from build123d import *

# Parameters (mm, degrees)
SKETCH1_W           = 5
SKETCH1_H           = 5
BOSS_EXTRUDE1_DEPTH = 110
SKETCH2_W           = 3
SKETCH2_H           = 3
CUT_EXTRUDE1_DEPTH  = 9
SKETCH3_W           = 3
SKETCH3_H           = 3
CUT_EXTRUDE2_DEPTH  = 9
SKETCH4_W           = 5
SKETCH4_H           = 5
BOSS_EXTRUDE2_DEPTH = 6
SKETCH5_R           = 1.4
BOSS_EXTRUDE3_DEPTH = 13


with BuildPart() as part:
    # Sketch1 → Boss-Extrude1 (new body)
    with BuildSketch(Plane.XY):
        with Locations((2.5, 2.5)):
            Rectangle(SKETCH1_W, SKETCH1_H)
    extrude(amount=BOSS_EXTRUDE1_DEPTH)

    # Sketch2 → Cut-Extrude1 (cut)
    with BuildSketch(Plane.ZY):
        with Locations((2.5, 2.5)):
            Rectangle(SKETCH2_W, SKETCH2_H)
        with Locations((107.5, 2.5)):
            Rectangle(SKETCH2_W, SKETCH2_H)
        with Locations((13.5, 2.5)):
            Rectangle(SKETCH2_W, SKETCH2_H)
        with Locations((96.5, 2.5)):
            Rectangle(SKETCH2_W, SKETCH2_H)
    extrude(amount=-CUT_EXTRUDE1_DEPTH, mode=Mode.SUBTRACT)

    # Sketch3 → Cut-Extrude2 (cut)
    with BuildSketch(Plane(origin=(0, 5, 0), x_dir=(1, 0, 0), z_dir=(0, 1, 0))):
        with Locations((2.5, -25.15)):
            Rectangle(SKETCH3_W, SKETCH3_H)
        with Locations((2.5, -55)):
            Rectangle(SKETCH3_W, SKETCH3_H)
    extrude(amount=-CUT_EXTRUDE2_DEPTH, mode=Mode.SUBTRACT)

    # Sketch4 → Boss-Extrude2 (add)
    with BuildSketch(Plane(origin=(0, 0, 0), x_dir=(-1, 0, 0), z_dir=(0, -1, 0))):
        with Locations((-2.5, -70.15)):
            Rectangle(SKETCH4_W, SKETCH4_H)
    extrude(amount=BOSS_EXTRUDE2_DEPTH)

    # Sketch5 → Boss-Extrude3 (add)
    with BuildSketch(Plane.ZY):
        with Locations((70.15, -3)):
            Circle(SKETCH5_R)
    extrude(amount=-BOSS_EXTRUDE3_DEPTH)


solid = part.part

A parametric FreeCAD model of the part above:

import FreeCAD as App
import Part
import Sketcher
Q = App.Units.Quantity

doc = App.newDocument("Part")
body = doc.addObject("PartDesign::Body", "Body")

sketch1 = body.newObject("Sketcher::SketchObject", "Sketch")
sketch1.AttachmentSupport = (doc.getObject("XY_Plane"), [""])
sketch1.MapMode = "FlatFace"
sketch1.addGeometry([
    Part.LineSegment(App.Vector(0, 5, 0), App.Vector(0, 0, 0)),
    Part.LineSegment(App.Vector(0, 0, 0), App.Vector(5, 0, 0)),
    Part.LineSegment(App.Vector(5, 0, 0), App.Vector(5, 5, 0)),
    Part.LineSegment(App.Vector(5, 5, 0), App.Vector(0, 5, 0)),
], False)
sketch1.addConstraint([
    Sketcher.Constraint("Coincident", 0, 2, 1, 1),
    Sketcher.Constraint("Coincident", 1, 2, 2, 1),
    Sketcher.Constraint("Coincident", 2, 2, 3, 1),
    Sketcher.Constraint("Coincident", 3, 2, 0, 1),
    Sketcher.Constraint("Vertical", 0),
    Sketcher.Constraint("Horizontal", 1),
    Sketcher.Constraint("Vertical", 2),
    Sketcher.Constraint("Horizontal", 3),
    Sketcher.Constraint("Coincident", 0, 2, -1, 1),
    Sketcher.Constraint("Equal", 3, 0),
    Sketcher.Constraint("DistanceX", 1, 1, 1, 2, Q("5 mm")),
])
pad1 = body.newObject("PartDesign::Pad", "Pad")
pad1.Profile = sketch1
pad1.Length = 110

sketch2 = body.newObject("Sketcher::SketchObject", "Sketch001")
sketch2.AttachmentSupport = (doc.getObject("YZ_Plane"), [""])
sketch2.MapMode = "FlatFace"
sketch2.addGeometry([
    Part.LineSegment(App.Vector(4, 1, 0), App.Vector(1, 1, 0)),
    Part.LineSegment(App.Vector(1, 1, 0), App.Vector(1, 4, 0)),
    Part.LineSegment(App.Vector(1, 4, 0), App.Vector(4, 4, 0)),
    Part.LineSegment(App.Vector(4, 4, 0), App.Vector(4, 1, 0)),
    Part.LineSegment(App.Vector(4, 106, 0), App.Vector(1, 106, 0)),
    Part.LineSegment(App.Vector(1, 106, 0), App.Vector(1, 109, 0)),
    Part.LineSegment(App.Vector(1, 109, 0), App.Vector(4, 109, 0)),
    Part.LineSegment(App.Vector(4, 109, 0), App.Vector(4, 106, 0)),
    Part.LineSegment(App.Vector(4, 12, 0), App.Vector(1, 12, 0)),
    Part.LineSegment(App.Vector(1, 12, 0), App.Vector(1, 15, 0)),
    Part.LineSegment(App.Vector(1, 15, 0), App.Vector(4, 15, 0)),
    Part.LineSegment(App.Vector(4, 15, 0), App.Vector(4, 12, 0)),
    Part.LineSegment(App.Vector(4, 95, 0), App.Vector(1, 95, 0)),
    Part.LineSegment(App.Vector(1, 95, 0), App.Vector(1, 98, 0)),
    Part.LineSegment(App.Vector(1, 98, 0), App.Vector(4, 98, 0)),
    Part.LineSegment(App.Vector(4, 98, 0), App.Vector(4, 95, 0)),
], False)
sketch2.addConstraint([
    Sketcher.Constraint("Coincident", 0, 2, 1, 1),
    Sketcher.Constraint("Coincident", 1, 2, 2, 1),
    Sketcher.Constraint("Coincident", 2, 2, 3, 1),
    Sketcher.Constraint("Coincident", 3, 2, 0, 1),
    Sketcher.Constraint("Coincident", 4, 2, 5, 1),
    Sketcher.Constraint("Coincident", 5, 2, 6, 1),
    Sketcher.Constraint("Coincident", 6, 2, 7, 1),
    Sketcher.Constraint("Coincident", 7, 2, 4, 1),
    Sketcher.Constraint("Coincident", 8, 2, 9, 1),
    Sketcher.Constraint("Coincident", 9, 2, 10, 1),
    Sketcher.Constraint("Coincident", 10, 2, 11, 1),
    Sketcher.Constraint("Coincident", 11, 2, 8, 1),
    Sketcher.Constraint("Coincident", 12, 2, 13, 1),
    Sketcher.Constraint("Coincident", 13, 2, 14, 1),
    Sketcher.Constraint("Coincident", 14, 2, 15, 1),
    Sketcher.Constraint("Coincident", 15, 2, 12, 1),
    Sketcher.Constraint("Horizontal", 0),
    Sketcher.Constraint("Vertical", 1),
    Sketcher.Constraint("Horizontal", 2),
    Sketcher.Constraint("Vertical", 3),
    Sketcher.Constraint("Horizontal", 4),
    Sketcher.Constraint("Vertical", 5),
    Sketcher.Constraint("Horizontal", 6),
    Sketcher.Constraint("Vertical", 7),
    Sketcher.Constraint("Horizontal", 8),
    Sketcher.Constraint("Vertical", 9),
    Sketcher.Constraint("Horizontal", 10),
    Sketcher.Constraint("Vertical", 11),
    Sketcher.Constraint("Horizontal", 12),
    Sketcher.Constraint("Vertical", 13),
    Sketcher.Constraint("Horizontal", 14),
    Sketcher.Constraint("Vertical", 15),
    Sketcher.Constraint("Vertical", 1, 2, 4, 2),
    Sketcher.Constraint("Vertical", 3, 2, 6, 2),
    Sketcher.Constraint("Vertical", 5, 2, 8, 2),
    Sketcher.Constraint("Vertical", 7, 2, 10, 2),
    Sketcher.Constraint("Vertical", 9, 2, 12, 2),
    Sketcher.Constraint("Vertical", 11, 2, 14, 2),
    Sketcher.Constraint("Equal", 14, 1),
    Sketcher.Constraint("Equal", 3, 5),
    Sketcher.Constraint("Equal", 7, 9),
    Sketcher.Constraint("Equal", 11, 13),
    Sketcher.Constraint("DistanceX", 0, 2, 0, 1, Q("3 mm")),
    Sketcher.Constraint("DistanceX", -1, 1, 0, 2, Q("1 mm")),
    Sketcher.Constraint("DistanceY", -1, 1, 0, 2, Q("1 mm")),
    Sketcher.Constraint("DistanceY", -1, 1, 4, 2, Q("106 mm")),
    Sketcher.Constraint("DistanceY", -1, 1, 8, 2, Q("12 mm")),
    Sketcher.Constraint("DistanceY", -1, 1, 12, 2, Q("95 mm")),
])
pocket1 = body.newObject("PartDesign::Pocket", "Pocket")
pocket1.Profile = sketch2
pocket1.Length = 9
pocket1.Reversed = True

sketch3 = body.newObject("Sketcher::SketchObject", "Sketch002")
sketch3.AttachmentSupport = (doc.getObject("XZ_Plane"), [""])
sketch3.MapMode = "FlatFace"
sketch3.AttachmentOffset = App.Placement(App.Vector(0, 0, -5), App.Rotation())
sketch3.addGeometry([
    Part.LineSegment(App.Vector(1, 23.65, 0), App.Vector(1, 26.65, 0)),
    Part.LineSegment(App.Vector(1, 26.65, 0), App.Vector(4, 26.65, 0)),
    Part.LineSegment(App.Vector(4, 26.65, 0), App.Vector(4, 23.65, 0)),
    Part.LineSegment(App.Vector(4, 23.65, 0), App.Vector(1, 23.65, 0)),
    Part.LineSegment(App.Vector(1, 53.5, 0), App.Vector(1, 56.5, 0)),
    Part.LineSegment(App.Vector(1, 56.5, 0), App.Vector(4, 56.5, 0)),
    Part.LineSegment(App.Vector(4, 56.5, 0), App.Vector(4, 53.5, 0)),
    Part.LineSegment(App.Vector(4, 53.5, 0), App.Vector(1, 53.5, 0)),
], False)
sketch3.addConstraint([
    Sketcher.Constraint("Coincident", 0, 2, 1, 1),
    Sketcher.Constraint("Coincident", 1, 2, 2, 1),
    Sketcher.Constraint("Coincident", 2, 2, 3, 1),
    Sketcher.Constraint("Coincident", 3, 2, 0, 1),
    Sketcher.Constraint("Coincident", 4, 2, 5, 1),
    Sketcher.Constraint("Coincident", 5, 2, 6, 1),
    Sketcher.Constraint("Coincident", 6, 2, 7, 1),
    Sketcher.Constraint("Coincident", 7, 2, 4, 1),
    Sketcher.Constraint("Vertical", 0),
    Sketcher.Constraint("Horizontal", 1),
    Sketcher.Constraint("Vertical", 2),
    Sketcher.Constraint("Horizontal", 3),
    Sketcher.Constraint("Vertical", 4),
    Sketcher.Constraint("Horizontal", 5),
    Sketcher.Constraint("Vertical", 6),
    Sketcher.Constraint("Horizontal", 7),
    Sketcher.Constraint("Vertical", 3, 2, 4, 2),
    Sketcher.Constraint("Vertical", 2, 2, 5, 2),
    Sketcher.Constraint("Equal", 7, 0),
    Sketcher.Constraint("Equal", 2, 4),
    Sketcher.Constraint("DistanceX", 1, 1, 1, 2, Q("3 mm")),
    Sketcher.Constraint("DistanceX", -1, 1, 0, 2, Q("1 mm")),
    Sketcher.Constraint("DistanceY", -1, 1, 4, 2, Q("56.5 mm")),
    Sketcher.Constraint("DistanceY", -1, 1, 0, 2, Q("26.65 mm")),
])
pocket2 = body.newObject("PartDesign::Pocket", "Pocket001")
pocket2.Profile = sketch3
pocket2.Length = 9
pocket2.Reversed = True

sketch4 = body.newObject("Sketcher::SketchObject", "Sketch003")
sketch4.AttachmentSupport = (doc.getObject("XZ_Plane"), [""])
sketch4.MapMode = "FlatFace"
sketch4.addGeometry([
    Part.LineSegment(App.Vector(5, 67.65, 0), App.Vector(5, 72.65, 0)),
    Part.LineSegment(App.Vector(5, 72.65, 0), App.Vector(0, 72.65, 0)),
    Part.LineSegment(App.Vector(0, 72.65, 0), App.Vector(0, 67.65, 0)),
    Part.LineSegment(App.Vector(0, 67.65, 0), App.Vector(5, 67.65, 0)),
], False)
sketch4.addConstraint([
    Sketcher.Constraint("Coincident", 0, 2, 1, 1),
    Sketcher.Constraint("Coincident", 1, 2, 2, 1),
    Sketcher.Constraint("Coincident", 2, 2, 3, 1),
    Sketcher.Constraint("Coincident", 3, 2, 0, 1),
    Sketcher.Constraint("Vertical", 0),
    Sketcher.Constraint("Horizontal", 1),
    Sketcher.Constraint("Vertical", 2),
    Sketcher.Constraint("Horizontal", 3),
    Sketcher.Constraint("PointOnObject", 1, 2, -2),
    Sketcher.Constraint("Equal", 3, 0),
    Sketcher.Constraint("DistanceX", 1, 2, 1, 1, Q("5 mm")),
    Sketcher.Constraint("DistanceY", -1, 1, 0, 2, Q("72.65 mm")),
])
pad2 = body.newObject("PartDesign::Pad", "Pad001")
pad2.Profile = sketch4
pad2.Length = 6

sketch5 = body.newObject("Sketcher::SketchObject", "Sketch004")
sketch5.AttachmentSupport = (doc.getObject("YZ_Plane"), [""])
sketch5.MapMode = "FlatFace"
sketch5.addGeometry(Part.Circle(App.Vector(-3, 70.15, 0), App.Vector(0, 0, 1), 1.4), False)
sketch5.addConstraint([
    Sketcher.Constraint("Diameter", 0, Q("2.8 mm")),
    Sketcher.Constraint("DistanceX", 0, 3, -1, 1, Q("3 mm")),
    Sketcher.Constraint("DistanceY", -1, 1, 0, 3, Q("70.15 mm")),
])
pad3 = body.newObject("PartDesign::Pad", "Pad002")
pad3.Profile = sketch5
pad3.Length = 13

doc.recompute()
